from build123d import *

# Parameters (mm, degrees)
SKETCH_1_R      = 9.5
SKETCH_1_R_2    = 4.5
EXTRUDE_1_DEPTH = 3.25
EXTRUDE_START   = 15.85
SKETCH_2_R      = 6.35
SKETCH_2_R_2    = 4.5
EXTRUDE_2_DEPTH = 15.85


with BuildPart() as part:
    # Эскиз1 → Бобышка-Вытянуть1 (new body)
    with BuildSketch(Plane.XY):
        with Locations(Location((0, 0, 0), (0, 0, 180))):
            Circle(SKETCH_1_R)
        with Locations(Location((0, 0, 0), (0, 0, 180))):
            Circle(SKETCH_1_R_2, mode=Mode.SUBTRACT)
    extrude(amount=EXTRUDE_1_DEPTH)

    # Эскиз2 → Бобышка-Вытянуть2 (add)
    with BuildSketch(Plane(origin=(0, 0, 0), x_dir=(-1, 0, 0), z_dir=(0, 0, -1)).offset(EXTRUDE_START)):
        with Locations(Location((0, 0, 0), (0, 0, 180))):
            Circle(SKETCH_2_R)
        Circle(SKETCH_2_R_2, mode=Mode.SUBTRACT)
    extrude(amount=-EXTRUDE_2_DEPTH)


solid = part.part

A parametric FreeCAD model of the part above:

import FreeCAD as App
import Part
import Sketcher

V = App.Vector

doc = App.newDocument("Part")
body = doc.addObject("PartDesign::Body", "Body")

# Sketch on XY plane
sketch1 = body.newObject("Sketcher::SketchObject", "Sketch")
sketch1.AttachmentSupport = (doc.getObject("XY_Plane"), [""])
sketch1.MapMode = "FlatFace"
sketch1.addGeometry([
    Part.Circle(V(0, 0, 0), V(0, 0, 1), 9.5),
    Part.Circle(V(0, 0, 0), V(0, 0, 1), 4.5),
], False)
sketch1.addConstraint([
    Sketcher.Constraint("Coincident", 0, 3, -1, 1),
    Sketcher.Constraint("Coincident", 1, 3, -1, 1),
    Sketcher.Constraint("Diameter", 0, 19.0),
    Sketcher.Constraint("Diameter", 1, 9.0),
])
pad1 = body.newObject("PartDesign::Pad", "Pad")
pad1.Profile = sketch1
pad1.Length = 3.25

# Sketch on XY plane
sketch2 = body.newObject("Sketcher::SketchObject", "Sketch001")
sketch2.AttachmentSupport = (doc.getObject("XY_Plane"), [""])
sketch2.MapMode = "FlatFace"
sketch2.AttachmentOffset = App.Placement(V(0, 0, -15.85), App.Rotation())
sketch2.addGeometry([
    Part.Circle(V(0, 0, 0), V(0, 0, 1), 6.3),
    Part.Circle(V(0, 0, 0), V(0, 0, 1), 4.5),
], False)
sketch2.addConstraint([
    Sketcher.Constraint("Coincident", 0, 3, -1, 1),
    Sketcher.Constraint("Coincident", 1, 3, -1, 1),
    Sketcher.Constraint("Diameter", 1, 9.0),
    Sketcher.Constraint("Diameter", 0, 12.7),
])
pad2 = body.newObject("PartDesign::Pad", "Pad001")
pad2.Profile = sketch2
pad2.Length = 15.85

doc.recompute()
